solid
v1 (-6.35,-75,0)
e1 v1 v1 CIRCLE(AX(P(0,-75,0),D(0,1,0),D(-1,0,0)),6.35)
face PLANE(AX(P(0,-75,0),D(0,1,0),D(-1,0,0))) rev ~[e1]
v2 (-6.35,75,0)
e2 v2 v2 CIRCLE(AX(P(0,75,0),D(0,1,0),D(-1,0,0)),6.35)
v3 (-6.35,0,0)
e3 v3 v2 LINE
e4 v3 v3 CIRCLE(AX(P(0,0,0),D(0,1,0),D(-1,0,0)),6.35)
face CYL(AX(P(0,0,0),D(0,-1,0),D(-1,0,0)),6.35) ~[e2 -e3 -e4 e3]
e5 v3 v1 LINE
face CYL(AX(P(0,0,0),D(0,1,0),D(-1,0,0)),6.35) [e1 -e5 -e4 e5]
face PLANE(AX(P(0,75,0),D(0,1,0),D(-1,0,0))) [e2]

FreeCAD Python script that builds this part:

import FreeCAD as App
import Part
import Sketcher

doc = App.newDocument("Part")
body = doc.addObject("PartDesign::Body", "Body")

# Sketch on XZ plane
sketch1 = body.newObject("Sketcher::SketchObject", "Sketch")
sketch1.AttachmentSupport = (doc.getObject("XZ_Plane"), [""])
sketch1.MapMode = "FlatFace"
sketch1.addGeometry(Part.Circle(App.Vector(0, 0, 0), App.Vector(0, 0, 1), 6.35), False)
sketch1.addConstraint([
    Sketcher.Constraint("Coincident", 0, 3, -1, 1),
    Sketcher.Constraint("Diameter", 0, 12.7),
])
pad1 = body.newObject("PartDesign::Pad", "Pad")
pad1.Profile = sketch1
pad1.Length = 150
pad1.Midplane = True

doc.recompute()
